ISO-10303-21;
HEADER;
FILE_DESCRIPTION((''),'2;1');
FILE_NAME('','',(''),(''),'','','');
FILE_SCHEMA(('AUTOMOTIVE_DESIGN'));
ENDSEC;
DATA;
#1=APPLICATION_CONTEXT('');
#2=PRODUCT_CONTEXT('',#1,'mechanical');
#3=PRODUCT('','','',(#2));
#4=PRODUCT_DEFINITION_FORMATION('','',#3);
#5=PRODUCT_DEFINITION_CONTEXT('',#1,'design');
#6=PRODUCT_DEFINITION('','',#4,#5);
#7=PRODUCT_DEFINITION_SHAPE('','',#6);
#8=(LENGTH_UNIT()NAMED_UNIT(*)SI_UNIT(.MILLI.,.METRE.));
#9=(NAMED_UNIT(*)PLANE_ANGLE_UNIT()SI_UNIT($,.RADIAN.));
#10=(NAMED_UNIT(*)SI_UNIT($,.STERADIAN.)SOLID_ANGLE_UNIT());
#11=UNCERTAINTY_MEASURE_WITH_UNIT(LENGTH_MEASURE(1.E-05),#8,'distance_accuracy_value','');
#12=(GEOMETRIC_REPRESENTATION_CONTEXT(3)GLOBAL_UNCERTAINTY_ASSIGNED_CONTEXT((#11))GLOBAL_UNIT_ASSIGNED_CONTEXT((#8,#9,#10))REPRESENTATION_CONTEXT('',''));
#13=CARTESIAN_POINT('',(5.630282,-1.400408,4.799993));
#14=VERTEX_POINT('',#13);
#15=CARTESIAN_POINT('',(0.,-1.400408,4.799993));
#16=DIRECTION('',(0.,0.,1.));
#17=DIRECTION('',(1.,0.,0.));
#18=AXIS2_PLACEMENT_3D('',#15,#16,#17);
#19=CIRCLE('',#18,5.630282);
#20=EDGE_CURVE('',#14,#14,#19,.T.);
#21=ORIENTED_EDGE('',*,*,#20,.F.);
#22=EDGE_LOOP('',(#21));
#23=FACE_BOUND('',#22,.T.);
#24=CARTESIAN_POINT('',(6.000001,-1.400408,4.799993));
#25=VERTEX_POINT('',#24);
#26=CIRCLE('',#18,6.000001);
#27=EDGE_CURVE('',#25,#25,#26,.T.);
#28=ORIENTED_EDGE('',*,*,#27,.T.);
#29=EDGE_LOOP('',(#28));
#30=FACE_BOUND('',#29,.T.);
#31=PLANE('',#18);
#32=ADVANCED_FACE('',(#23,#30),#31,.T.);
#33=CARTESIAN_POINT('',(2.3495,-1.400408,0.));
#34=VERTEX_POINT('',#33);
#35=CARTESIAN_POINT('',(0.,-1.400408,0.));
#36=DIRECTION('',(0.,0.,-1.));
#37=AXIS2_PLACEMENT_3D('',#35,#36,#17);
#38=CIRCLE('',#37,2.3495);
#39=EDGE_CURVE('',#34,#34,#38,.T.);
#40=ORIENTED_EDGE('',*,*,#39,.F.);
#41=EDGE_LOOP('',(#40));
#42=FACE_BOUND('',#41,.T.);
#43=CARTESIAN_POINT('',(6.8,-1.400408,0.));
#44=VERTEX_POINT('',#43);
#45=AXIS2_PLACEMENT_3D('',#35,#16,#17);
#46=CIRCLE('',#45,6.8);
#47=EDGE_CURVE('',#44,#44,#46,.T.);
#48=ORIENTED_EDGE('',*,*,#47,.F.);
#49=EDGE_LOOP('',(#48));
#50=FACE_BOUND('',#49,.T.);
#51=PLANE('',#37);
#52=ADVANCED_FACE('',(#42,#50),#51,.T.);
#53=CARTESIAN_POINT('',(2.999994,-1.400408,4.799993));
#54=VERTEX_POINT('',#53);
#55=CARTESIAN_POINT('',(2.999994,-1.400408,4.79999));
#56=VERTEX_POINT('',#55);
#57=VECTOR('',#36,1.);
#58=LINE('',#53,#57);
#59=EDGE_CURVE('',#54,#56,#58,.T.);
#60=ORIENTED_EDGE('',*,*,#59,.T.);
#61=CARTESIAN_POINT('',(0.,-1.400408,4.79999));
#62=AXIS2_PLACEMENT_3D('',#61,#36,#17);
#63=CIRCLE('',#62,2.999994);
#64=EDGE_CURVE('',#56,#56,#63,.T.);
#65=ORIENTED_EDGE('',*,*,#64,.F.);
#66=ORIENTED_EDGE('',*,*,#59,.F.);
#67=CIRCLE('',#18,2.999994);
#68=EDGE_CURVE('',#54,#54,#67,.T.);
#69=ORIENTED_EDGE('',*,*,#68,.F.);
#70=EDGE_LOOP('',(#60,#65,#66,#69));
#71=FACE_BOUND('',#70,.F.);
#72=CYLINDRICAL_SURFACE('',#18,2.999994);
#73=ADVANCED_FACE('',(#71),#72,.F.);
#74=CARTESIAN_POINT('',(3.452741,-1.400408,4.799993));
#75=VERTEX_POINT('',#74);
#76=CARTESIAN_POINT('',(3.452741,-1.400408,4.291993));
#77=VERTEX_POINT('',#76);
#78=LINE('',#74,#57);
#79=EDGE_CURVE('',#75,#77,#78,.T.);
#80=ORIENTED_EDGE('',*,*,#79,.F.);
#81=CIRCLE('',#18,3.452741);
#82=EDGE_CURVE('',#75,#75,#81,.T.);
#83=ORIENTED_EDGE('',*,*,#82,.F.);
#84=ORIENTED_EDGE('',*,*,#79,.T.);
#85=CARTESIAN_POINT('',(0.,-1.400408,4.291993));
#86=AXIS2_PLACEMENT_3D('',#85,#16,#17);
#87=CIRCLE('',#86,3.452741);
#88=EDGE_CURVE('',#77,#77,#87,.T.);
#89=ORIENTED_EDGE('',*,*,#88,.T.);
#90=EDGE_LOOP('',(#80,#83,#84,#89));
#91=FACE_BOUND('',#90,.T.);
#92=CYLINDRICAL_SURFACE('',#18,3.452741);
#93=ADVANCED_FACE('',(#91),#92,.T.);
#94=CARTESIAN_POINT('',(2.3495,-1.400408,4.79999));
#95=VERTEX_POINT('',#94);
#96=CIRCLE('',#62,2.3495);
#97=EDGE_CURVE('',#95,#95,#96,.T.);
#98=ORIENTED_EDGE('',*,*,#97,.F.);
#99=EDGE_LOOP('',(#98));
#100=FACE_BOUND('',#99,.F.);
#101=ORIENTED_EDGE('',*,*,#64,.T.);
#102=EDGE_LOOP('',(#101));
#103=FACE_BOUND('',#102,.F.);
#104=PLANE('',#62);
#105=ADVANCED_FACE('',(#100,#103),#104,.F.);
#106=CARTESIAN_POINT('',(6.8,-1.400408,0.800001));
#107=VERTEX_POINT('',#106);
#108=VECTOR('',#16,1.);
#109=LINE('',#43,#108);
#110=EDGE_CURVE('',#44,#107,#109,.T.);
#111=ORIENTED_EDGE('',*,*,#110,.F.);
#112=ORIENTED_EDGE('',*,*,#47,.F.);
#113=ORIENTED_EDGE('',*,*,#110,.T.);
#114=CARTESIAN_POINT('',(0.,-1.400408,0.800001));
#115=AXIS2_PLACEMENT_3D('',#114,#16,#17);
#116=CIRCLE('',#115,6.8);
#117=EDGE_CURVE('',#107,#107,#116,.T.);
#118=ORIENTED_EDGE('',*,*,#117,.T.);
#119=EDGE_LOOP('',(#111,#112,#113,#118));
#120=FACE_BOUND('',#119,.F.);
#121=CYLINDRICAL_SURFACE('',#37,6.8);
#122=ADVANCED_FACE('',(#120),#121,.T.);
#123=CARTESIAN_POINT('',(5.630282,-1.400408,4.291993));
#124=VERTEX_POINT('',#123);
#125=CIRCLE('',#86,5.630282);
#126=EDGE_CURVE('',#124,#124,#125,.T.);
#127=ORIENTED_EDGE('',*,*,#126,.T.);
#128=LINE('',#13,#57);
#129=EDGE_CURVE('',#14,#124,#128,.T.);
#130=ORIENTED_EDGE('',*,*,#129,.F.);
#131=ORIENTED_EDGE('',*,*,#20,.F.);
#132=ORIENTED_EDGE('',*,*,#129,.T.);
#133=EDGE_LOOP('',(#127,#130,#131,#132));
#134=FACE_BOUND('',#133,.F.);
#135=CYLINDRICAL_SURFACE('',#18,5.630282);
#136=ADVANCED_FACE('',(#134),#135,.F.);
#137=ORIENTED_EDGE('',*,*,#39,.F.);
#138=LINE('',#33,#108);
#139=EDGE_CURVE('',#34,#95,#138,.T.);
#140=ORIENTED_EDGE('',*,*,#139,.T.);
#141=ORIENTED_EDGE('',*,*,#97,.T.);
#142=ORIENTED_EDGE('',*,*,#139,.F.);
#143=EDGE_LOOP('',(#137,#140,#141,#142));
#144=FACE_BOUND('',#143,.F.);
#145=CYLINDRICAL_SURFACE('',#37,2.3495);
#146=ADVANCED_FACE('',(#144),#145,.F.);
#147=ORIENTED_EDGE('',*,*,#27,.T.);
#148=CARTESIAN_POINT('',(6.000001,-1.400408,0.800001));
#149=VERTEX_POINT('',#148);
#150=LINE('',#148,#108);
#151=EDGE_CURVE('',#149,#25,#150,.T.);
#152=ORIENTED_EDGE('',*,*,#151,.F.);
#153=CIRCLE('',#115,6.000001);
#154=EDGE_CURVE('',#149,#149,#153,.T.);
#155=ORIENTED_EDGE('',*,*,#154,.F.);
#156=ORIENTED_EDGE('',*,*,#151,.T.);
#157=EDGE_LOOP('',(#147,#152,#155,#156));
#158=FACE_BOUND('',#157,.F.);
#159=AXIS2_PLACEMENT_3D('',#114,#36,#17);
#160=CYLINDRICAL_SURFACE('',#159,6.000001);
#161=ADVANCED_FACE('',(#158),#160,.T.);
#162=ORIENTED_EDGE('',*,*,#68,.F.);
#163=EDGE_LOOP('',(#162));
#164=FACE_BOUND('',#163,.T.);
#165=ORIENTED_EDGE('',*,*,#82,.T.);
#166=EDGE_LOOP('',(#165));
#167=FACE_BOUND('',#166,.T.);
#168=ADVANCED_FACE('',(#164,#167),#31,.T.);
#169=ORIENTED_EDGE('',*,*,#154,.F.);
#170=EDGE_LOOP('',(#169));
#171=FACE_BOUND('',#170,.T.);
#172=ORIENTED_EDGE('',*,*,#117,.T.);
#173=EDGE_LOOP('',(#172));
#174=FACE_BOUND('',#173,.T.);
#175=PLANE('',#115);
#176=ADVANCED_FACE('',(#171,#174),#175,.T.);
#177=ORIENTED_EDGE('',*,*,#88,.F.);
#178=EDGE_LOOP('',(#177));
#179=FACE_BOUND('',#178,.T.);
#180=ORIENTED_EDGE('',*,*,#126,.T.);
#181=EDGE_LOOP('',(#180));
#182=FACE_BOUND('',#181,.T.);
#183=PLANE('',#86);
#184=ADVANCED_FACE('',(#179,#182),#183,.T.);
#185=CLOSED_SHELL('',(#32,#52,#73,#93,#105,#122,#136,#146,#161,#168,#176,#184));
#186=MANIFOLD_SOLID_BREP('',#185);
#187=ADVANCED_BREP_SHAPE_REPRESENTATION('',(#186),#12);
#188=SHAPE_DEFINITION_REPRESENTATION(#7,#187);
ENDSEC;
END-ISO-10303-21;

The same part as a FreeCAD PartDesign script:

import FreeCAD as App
import Part
import Sketcher

V = App.Vector

doc = App.newDocument("Part")
params = doc.addObject("Spreadsheet::Sheet", "Params")
for row, (alias, value) in enumerate([
    ("sketch1_diameter", "13.600001 mm"),
    ("pad1_length", "0.800001 mm"),
    ("sketch2_diameter", "12.000001 mm"),
    ("pad2_length", "3.999992 mm"),
    ("pocket1_length", "25.4 mm"),
    ("pocket2_length", "0.508 mm"),
    ("pad3_length", "4.79999 mm"),
], start=1):
    params.set(f"A{row}", alias)
    params.set(f"B{row}", "=" + value)
    params.setAlias(f"B{row}", alias)

body = doc.addObject("PartDesign::Body", "Body")

# Sketch on XY plane
sketch1 = doc.addObject("Sketcher::SketchObject", "Sketch")
body.addObject(sketch1)
sketch1.AttachmentSupport = (doc.XY_Plane, [""])
sketch1.MapMode = "FlatFace"
sketch1.addGeometry(Part.Circle(V(0, -1, 0), V(0, 0, 1), 7), False)
sketch1.addConstraint(Sketcher.Constraint("PointOnObject", 0, 3, -2))
sketch1.addConstraint(Sketcher.Constraint("Diameter", 0, 13.600001))
sketch1.addConstraint(Sketcher.Constraint("DistanceY", 0, 3, -1, 1, 1.400408))
sketch1.setExpression("Constraints[1]", "Params.sketch1_diameter")
pad1 = doc.addObject("PartDesign::Pad", "Pad")
body.addObject(pad1)
pad1.Profile = sketch1
pad1.setExpression("Length", "Params.pad1_length")

# Sketch on XY plane
sketch2 = doc.addObject("Sketcher::SketchObject", "Sketch001")
body.addObject(sketch2)
sketch2.AttachmentSupport = (doc.XY_Plane, [""])
sketch2.MapMode = "FlatFace"
sketch2.AttachmentOffset = App.Placement(V(0, 0, 0.800001), App.Rotation())
sketch2.addGeometry(Part.Circle(V(0, -1, 0), V(0, 0, 1), 6), False)
sketch2.addConstraint(Sketcher.Constraint("PointOnObject", 0, 3, -2))
sketch2.addConstraint(Sketcher.Constraint("Diameter", 0, 12.000001))
sketch2.addConstraint(Sketcher.Constraint("DistanceY", 0, 3, -1, 1, 1.400408))
sketch2.setExpression("Constraints[1]", "Params.sketch2_diameter")
pad2 = doc.addObject("PartDesign::Pad", "Pad001")
body.addObject(pad2)
pad2.Profile = sketch2
pad2.setExpression("Length", "Params.pad2_length")

# Sketch on XY plane
sketch3 = doc.addObject("Sketcher::SketchObject", "Sketch002")
body.addObject(sketch3)
sketch3.AttachmentSupport = (doc.XY_Plane, [""])
sketch3.MapMode = "FlatFace"
sketch3.AttachmentOffset = App.Placement(V(0, 0, 4.799993), App.Rotation())
sketch3.addGeometry(Part.Circle(V(0, -1.4, 0), V(0, 0, 1), 3), False)
sketch3.addConstraint(Sketcher.Constraint("PointOnObject", 0, 3, -2))
sketch3.addConstraint(Sketcher.Constraint("Diameter", 0, 5.999988))
sketch3.addConstraint(Sketcher.Constraint("DistanceY", 0, 3, -1, 1, 1.400408))
pocket1 = doc.addObject("PartDesign::Pocket", "Pocket")
body.addObject(pocket1)
pocket1.Profile = sketch3
pocket1.setExpression("Length", "Params.pocket1_length")

# Sketch on XY plane
sketch4 = doc.addObject("Sketcher::SketchObject", "Sketch003")
body.addObject(sketch4)
sketch4.AttachmentSupport = (doc.XY_Plane, [""])
sketch4.MapMode = "FlatFace"
sketch4.AttachmentOffset = App.Placement(V(0, 0, 4.799993), App.Rotation())
sketch4.addGeometry(Part.Circle(V(0, -1.4, 0), V(0, 0, 1), 5.6), False)
sketch4.addGeometry(Part.Circle(V(0, -1.4, 0), V(0, 0, 1), 3.5), False)
sketch4.addConstraint(Sketcher.Constraint("Coincident", 1, 3, 0, 3))
sketch4.addConstraint(Sketcher.Constraint("PointOnObject", 0, 3, -2))
sketch4.addConstraint(Sketcher.Constraint("Diameter", 0, 11.260563))
sketch4.addConstraint(Sketcher.Constraint("Diameter", 1, 6.905482))
sketch4.addConstraint(Sketcher.Constraint("DistanceY", 0, 3, -1, 1, 1.400408))
pocket2 = doc.addObject("PartDesign::Pocket", "Pocket001")
body.addObject(pocket2)
pocket2.Profile = sketch4
pocket2.setExpression("Length", "Params.pocket2_length")

# Sketch on XY plane
sketch5 = doc.addObject("Sketcher::SketchObject", "Sketch004")
body.addObject(sketch5)
sketch5.AttachmentSupport = (doc.XY_Plane, [""])
sketch5.MapMode = "FlatFace"
sketch5.addGeometry(Part.Circle(V(0, -1.4, 0), V(0, 0, 1), 3), False)
sketch5.addGeometry(Part.Circle(V(0, -1.4, 0), V(0, 0, 1), 2.3), False)
sketch5.addConstraint(Sketcher.Constraint("Coincident", 1, 3, 0, 3))
sketch5.addConstraint(Sketcher.Constraint("PointOnObject", 0, 3, -2))
sketch5.addConstraint(Sketcher.Constraint("Diameter", 1, 4.699))
sketch5.addConstraint(Sketcher.Constraint("Diameter", 0, 5.999988))
sketch5.addConstraint(Sketcher.Constraint("DistanceY", 0, 3, -1, 1, 1.400408))
pad3 = doc.addObject("PartDesign::Pad", "Pad002")
body.addObject(pad3)
pad3.Profile = sketch5
pad3.setExpression("Length", "Params.pad3_length")

doc.recompute()
